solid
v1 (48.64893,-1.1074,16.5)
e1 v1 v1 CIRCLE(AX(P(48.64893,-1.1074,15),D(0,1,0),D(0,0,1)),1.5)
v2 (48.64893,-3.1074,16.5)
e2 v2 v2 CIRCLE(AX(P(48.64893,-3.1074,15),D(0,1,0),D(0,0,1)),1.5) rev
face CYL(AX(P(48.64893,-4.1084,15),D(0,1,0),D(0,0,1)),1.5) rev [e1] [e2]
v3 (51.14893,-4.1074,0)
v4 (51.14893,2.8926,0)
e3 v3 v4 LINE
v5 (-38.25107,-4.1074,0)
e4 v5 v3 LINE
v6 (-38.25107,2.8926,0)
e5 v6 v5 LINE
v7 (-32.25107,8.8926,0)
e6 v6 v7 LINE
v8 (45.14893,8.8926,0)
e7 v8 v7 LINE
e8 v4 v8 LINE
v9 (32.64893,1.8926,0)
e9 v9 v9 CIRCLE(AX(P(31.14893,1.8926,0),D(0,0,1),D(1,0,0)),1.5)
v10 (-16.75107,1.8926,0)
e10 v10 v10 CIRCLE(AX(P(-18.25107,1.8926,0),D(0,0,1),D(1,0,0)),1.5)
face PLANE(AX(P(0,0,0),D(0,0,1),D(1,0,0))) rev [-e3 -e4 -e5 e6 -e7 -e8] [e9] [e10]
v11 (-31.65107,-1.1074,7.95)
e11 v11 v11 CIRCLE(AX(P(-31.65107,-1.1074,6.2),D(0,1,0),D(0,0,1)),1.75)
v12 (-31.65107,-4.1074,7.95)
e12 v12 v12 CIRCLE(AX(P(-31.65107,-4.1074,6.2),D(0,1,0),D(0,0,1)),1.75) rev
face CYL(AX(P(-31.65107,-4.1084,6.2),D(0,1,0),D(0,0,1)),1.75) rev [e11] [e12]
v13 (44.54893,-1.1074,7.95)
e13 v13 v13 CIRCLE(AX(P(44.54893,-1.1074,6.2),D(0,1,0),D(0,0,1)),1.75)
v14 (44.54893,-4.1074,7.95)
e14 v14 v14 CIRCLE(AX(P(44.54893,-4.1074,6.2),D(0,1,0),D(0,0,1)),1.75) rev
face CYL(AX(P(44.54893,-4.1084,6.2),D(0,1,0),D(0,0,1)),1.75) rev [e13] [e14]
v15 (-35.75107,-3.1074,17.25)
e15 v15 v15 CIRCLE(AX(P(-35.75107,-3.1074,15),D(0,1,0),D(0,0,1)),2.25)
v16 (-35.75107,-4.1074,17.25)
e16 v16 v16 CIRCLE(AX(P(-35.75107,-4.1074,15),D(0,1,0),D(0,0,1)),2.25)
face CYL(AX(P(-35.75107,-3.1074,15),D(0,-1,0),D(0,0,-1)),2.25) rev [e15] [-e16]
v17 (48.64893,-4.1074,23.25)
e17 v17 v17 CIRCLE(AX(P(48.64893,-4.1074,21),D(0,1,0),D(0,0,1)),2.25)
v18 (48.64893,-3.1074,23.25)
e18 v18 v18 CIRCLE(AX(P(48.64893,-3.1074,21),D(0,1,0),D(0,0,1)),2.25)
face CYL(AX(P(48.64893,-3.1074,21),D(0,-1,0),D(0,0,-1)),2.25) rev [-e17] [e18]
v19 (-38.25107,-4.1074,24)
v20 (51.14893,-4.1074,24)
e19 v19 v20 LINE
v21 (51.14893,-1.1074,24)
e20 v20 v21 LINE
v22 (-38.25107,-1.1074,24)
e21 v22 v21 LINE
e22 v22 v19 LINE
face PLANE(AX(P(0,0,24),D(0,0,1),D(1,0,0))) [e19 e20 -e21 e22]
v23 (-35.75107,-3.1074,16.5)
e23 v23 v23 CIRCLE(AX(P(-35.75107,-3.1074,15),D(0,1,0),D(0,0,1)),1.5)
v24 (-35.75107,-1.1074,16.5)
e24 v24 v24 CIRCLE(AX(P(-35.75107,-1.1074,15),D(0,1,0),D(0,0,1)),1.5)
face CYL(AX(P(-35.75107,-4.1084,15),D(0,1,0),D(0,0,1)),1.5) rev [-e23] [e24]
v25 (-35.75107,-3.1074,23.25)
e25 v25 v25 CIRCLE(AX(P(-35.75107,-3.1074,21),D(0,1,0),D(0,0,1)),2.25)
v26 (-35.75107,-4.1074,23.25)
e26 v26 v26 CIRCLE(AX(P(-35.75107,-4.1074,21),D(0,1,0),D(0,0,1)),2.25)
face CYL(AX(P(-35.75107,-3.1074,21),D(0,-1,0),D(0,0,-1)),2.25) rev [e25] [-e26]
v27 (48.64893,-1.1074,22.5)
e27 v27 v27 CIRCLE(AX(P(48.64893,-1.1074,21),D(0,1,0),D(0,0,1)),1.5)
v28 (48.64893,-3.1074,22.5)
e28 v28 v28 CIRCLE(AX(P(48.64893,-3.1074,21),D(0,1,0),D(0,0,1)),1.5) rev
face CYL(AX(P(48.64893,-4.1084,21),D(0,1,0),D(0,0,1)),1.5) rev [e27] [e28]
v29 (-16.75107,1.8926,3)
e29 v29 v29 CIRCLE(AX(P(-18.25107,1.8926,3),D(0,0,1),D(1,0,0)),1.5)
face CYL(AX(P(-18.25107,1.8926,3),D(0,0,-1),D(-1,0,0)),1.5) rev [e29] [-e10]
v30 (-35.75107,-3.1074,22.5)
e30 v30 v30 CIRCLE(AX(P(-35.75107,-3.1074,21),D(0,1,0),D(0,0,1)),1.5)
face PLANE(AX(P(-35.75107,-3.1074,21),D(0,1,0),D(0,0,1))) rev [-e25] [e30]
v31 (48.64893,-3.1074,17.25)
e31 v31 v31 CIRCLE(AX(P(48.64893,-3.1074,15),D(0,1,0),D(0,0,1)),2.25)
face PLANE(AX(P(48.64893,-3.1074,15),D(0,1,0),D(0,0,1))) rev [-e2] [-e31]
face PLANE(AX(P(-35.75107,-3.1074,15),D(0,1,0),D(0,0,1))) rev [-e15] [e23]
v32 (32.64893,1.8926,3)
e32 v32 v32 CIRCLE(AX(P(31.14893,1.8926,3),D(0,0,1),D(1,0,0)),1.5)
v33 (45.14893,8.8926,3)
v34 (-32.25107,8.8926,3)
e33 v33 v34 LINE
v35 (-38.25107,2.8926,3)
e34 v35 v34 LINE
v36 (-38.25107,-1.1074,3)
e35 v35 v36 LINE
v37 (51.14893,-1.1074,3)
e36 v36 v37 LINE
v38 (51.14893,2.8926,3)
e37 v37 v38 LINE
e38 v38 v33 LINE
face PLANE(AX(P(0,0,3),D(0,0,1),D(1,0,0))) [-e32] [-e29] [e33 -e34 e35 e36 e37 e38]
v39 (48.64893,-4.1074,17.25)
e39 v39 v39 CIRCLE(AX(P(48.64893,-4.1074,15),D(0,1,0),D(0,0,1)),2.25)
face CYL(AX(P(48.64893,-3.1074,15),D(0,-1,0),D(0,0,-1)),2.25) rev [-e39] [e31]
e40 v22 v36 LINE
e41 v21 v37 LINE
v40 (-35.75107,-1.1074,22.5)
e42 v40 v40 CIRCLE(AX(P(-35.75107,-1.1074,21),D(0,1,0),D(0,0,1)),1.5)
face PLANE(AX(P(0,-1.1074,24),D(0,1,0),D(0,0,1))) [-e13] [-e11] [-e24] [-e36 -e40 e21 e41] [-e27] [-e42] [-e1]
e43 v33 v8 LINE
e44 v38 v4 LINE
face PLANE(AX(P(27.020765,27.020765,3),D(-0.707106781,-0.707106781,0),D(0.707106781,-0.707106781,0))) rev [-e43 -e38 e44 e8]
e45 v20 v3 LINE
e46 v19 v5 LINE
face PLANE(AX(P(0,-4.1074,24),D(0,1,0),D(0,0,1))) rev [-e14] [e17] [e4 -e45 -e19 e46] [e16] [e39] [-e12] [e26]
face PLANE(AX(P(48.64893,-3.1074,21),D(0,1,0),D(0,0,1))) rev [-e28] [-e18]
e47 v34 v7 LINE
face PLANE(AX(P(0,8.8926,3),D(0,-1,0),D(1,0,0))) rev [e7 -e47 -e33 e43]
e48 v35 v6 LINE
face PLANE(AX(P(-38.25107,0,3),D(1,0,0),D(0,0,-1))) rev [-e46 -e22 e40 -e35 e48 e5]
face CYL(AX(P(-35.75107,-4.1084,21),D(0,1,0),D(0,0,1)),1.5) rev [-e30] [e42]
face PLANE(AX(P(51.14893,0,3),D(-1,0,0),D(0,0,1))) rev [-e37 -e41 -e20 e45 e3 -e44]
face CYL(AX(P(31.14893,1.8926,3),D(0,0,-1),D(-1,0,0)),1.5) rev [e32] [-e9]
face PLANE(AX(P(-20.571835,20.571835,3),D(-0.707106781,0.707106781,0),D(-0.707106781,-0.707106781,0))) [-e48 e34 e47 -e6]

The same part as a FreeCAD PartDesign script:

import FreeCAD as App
import Part
import Sketcher
from FreeCAD import Vector
Q = App.Units.Quantity


def add_polygon(sketch, points):
    """Adds a closed chain of lines whose ends are joined by coincident constraints."""
    first, n = sketch.GeometryCount, len(points)
    for a, b in zip(points, points[1:] + points[:1]):
        sketch.addGeometry(Part.LineSegment(App.Vector(*a, 0), App.Vector(*b, 0)), False)
    for i in range(n):
        sketch.addConstraint(Sketcher.Constraint("Coincident", first + i, 2, first + (i + 1) % n, 1))

doc = App.newDocument("Part")
body = doc.addObject("PartDesign::Body", "Body")

# Sketch on XY plane
sketch1 = body.newObject("Sketcher::SketchObject", "Sketch")
sketch1.AttachmentSupport = (doc.getObject("XY_Plane"), [""])
sketch1.MapMode = "FlatFace"
add_polygon(sketch1, [(-32.3, 8.9), (-38.3, 2.9), (-38.3, -1.1), (51.1, -1.1), (51.1, 2.9), (45.1, 8.9)])  # lines 0-5
sketch1.addGeometry(Part.Circle(Vector(-18.3, 1.9, 0), Vector(0, 0, 1), 1.5), False)  # 6
sketch1.addGeometry(Part.Circle(Vector(31.1, 1.9, 0), Vector(0, 0, 1), 1.5), False)  # 7
sketch1.addConstraint([
    Sketcher.Constraint("Vertical", 1),
    Sketcher.Constraint("Horizontal", 2),
    Sketcher.Constraint("Vertical", 3),
    Sketcher.Constraint("Horizontal", 5),
    Sketcher.Constraint("Equal", 6, 7),
    Sketcher.Constraint("Perpendicular", 0, 4),
    Sketcher.Constraint("Horizontal", 6, 3, 7, 3),
    Sketcher.Constraint("Horizontal", 0, 2, 3, 2),
    Sketcher.Constraint("Equal", 0, 4),
    Sketcher.Constraint("Diameter", 6, Q("3 mm")),
    Sketcher.Constraint("DistanceY", 1, 2, 1, 1, Q("4 mm")),
    Sketcher.Constraint("DistanceX", 2, 1, 2, 2, Q("89.4 mm")),
    Sketcher.Constraint("DistanceX", 5, 2, 5, 1, Q("77.4 mm")),
    Sketcher.Constraint("DistanceX", 0, 2, 6, 3, Q("20 mm")),
    Sketcher.Constraint("DistanceY", 6, 3, 0, 2, Q("1 mm")),
    Sketcher.Constraint("DistanceX", 7, 3, 2, 2, Q("20 mm")),
    Sketcher.Constraint("DistanceY", -1, 1, 6, 3, Q("1.8926 mm")),
    Sketcher.Constraint("DistanceX", 6, 3, -1, 1, Q("18.25107 mm")),
])
pad1 = body.newObject("PartDesign::Pad", "Pad")
pad1.Profile = sketch1
pad1.Length = 3

# Sketch on XY plane
sketch2 = body.newObject("Sketcher::SketchObject", "Sketch001")
sketch2.AttachmentSupport = (doc.getObject("XY_Plane"), [""])
sketch2.MapMode = "FlatFace"
add_polygon(sketch2, [(-38.3, -1.1), (-38.3, -4.1), (51.1, -4.1), (51.1, -1.1)])  # lines 0-3
sketch2.addConstraint([
    Sketcher.Constraint("Vertical", 0),
    Sketcher.Constraint("Horizontal", 1),
    Sketcher.Constraint("Vertical", 2),
    Sketcher.Constraint("Horizontal", 3),
    Sketcher.Constraint("DistanceY", 0, 2, 0, 1, Q("3 mm")),
    Sketcher.Constraint("DistanceX", 1, 1, 1, 2, Q("89.4 mm")),
    Sketcher.Constraint("DistanceY", 0, 2, -1, 1, Q("4.1074 mm")),
    Sketcher.Constraint("DistanceX", 0, 2, -1, 1, Q("38.25107 mm")),
])
pad2 = body.newObject("PartDesign::Pad", "Pad001")
pad2.Profile = sketch2
pad2.Length = 24

# Sketch on XZ plane
sketch3 = body.newObject("Sketcher::SketchObject", "Sketch002")
sketch3.AttachmentSupport = (doc.getObject("XZ_Plane"), [""])
sketch3.MapMode = "FlatFace"
sketch3.AttachmentOffset = App.Placement(Vector(0, 0, 1.1074), App.Rotation())
sketch3.addGeometry(Part.Circle(Vector(48.6, 15, 0), Vector(0, 0, 1), 1.5), False)
sketch3.addConstraint([
    Sketcher.Constraint("Diameter", 0, Q("3 mm")),
    Sketcher.Constraint("DistanceY", -1, 1, 0, 3, Q("15 mm")),
    Sketcher.Constraint("DistanceX", -1, 1, 0, 3, Q("48.64893 mm")),
])
pocket1 = body.newObject("PartDesign::Pocket", "Pocket")
pocket1.Profile = sketch3
pocket1.Type = "UpToFirst"
pocket1.Reversed = True

# Sketch on XZ plane
sketch4 = body.newObject("Sketcher::SketchObject", "Sketch003")
sketch4.AttachmentSupport = (doc.getObject("XZ_Plane"), [""])
sketch4.MapMode = "FlatFace"
sketch4.AttachmentOffset = App.Placement(Vector(0, 0, 1.1074), App.Rotation())
sketch4.addGeometry(Part.Circle(Vector(48.6, 21, 0), Vector(0, 0, 1), 1.5), False)
sketch4.addConstraint([
    Sketcher.Constraint("Diameter", 0, Q("3 mm")),
    Sketcher.Constraint("DistanceY", -1, 1, 0, 3, Q("21 mm")),
    Sketcher.Constraint("DistanceX", -1, 1, 0, 3, Q("48.64893 mm")),
])
pocket2 = body.newObject("PartDesign::Pocket", "Pocket001")
pocket2.Profile = sketch4
pocket2.Type = "UpToFirst"
pocket2.Reversed = True

# Sketch on XZ plane
sketch5 = body.newObject("Sketcher::SketchObject", "Sketch004")
sketch5.AttachmentSupport = (doc.getObject("XZ_Plane"), [""])
sketch5.MapMode = "FlatFace"
sketch5.AttachmentOffset = App.Placement(Vector(0, 0, 1.1074), App.Rotation())
sketch5.addGeometry(Part.Circle(Vector(-35.8, 15, 0), Vector(0, 0, 1), 1.5), False)
sketch5.addConstraint([
    Sketcher.Constraint("Diameter", 0, Q("3 mm")),
    Sketcher.Constraint("DistanceY", -1, 1, 0, 3, Q("15 mm")),
    Sketcher.Constraint("DistanceX", 0, 3, -1, 1, Q("35.75107 mm")),
])
pocket3 = body.newObject("PartDesign::Pocket", "Pocket002")
pocket3.Profile = sketch5
pocket3.Type = "UpToFirst"
pocket3.Reversed = True

# Sketch on XZ plane
sketch6 = body.newObject("Sketcher::SketchObject", "Sketch005")
sketch6.AttachmentSupport = (doc.getObject("XZ_Plane"), [""])
sketch6.MapMode = "FlatFace"
sketch6.AttachmentOffset = App.Placement(Vector(0, 0, 1.1074), App.Rotation())
sketch6.addGeometry(Part.Circle(Vector(-35.8, 21, 0), Vector(0, 0, 1), 1.5), False)
sketch6.addConstraint([
    Sketcher.Constraint("Diameter", 0, Q("3 mm")),
    Sketcher.Constraint("DistanceY", -1, 1, 0, 3, Q("21 mm")),
    Sketcher.Constraint("DistanceX", 0, 3, -1, 1, Q("35.75107 mm")),
])
pocket4 = body.newObject("PartDesign::Pocket", "Pocket003")
pocket4.Profile = sketch6
pocket4.Type = "UpToFirst"
pocket4.Reversed = True

# Sketch on XZ plane
sketch7 = body.newObject("Sketcher::SketchObject", "Sketch006")
sketch7.AttachmentSupport = (doc.getObject("XZ_Plane"), [""])
sketch7.MapMode = "FlatFace"
sketch7.AttachmentOffset = App.Placement(Vector(0, 0, 1.1074), App.Rotation())
sketch7.addGeometry(Part.Circle(Vector(44.5, 6.2, 0), Vector(0, 0, 1), 1.8), False)
sketch7.addConstraint([
    Sketcher.Constraint("Diameter", 0, Q("3.5 mm")),
    Sketcher.Constraint("DistanceY", -1, 1, 0, 3, Q("6.2 mm")),
    Sketcher.Constraint("DistanceX", -1, 1, 0, 3, Q("44.54893 mm")),
])
pocket5 = body.newObject("PartDesign::Pocket", "Pocket004")
pocket5.Profile = sketch7
pocket5.Type = "UpToFirst"
pocket5.Reversed = True

# Sketch on XZ plane
sketch8 = body.newObject("Sketcher::SketchObject", "Sketch007")
sketch8.AttachmentSupport = (doc.getObject("XZ_Plane"), [""])
sketch8.MapMode = "FlatFace"
sketch8.AttachmentOffset = App.Placement(Vector(0, 0, 1.1074), App.Rotation())
sketch8.addGeometry(Part.Circle(Vector(-31.7, 6.2, 0), Vector(0, 0, 1), 1.8), False)
sketch8.addConstraint([
    Sketcher.Constraint("Diameter", 0, Q("3.5 mm")),
    Sketcher.Constraint("DistanceY", -1, 1, 0, 3, Q("6.2 mm")),
    Sketcher.Constraint("DistanceX", 0, 3, -1, 1, Q("31.65107 mm")),
])
pocket6 = body.newObject("PartDesign::Pocket", "Pocket005")
pocket6.Profile = sketch8
pocket6.Type = "UpToFirst"
pocket6.Reversed = True

# Sketch on XZ plane
sketch9 = body.newObject("Sketcher::SketchObject", "Sketch008")
sketch9.AttachmentSupport = (doc.getObject("XZ_Plane"), [""])
sketch9.MapMode = "FlatFace"
sketch9.AttachmentOffset = App.Placement(Vector(0, 0, 4.1074), App.Rotation())
sketch9.addGeometry([
    Part.Circle(Vector(-35.8, 15, 0), Vector(0, 0, 1), 2.2),  # 0
    Part.Circle(Vector(-35.8, 15, 0), Vector(0, 0, 1), 1.5),  # 1
    Part.Circle(Vector(-35.8, 21, 0), Vector(0, 0, 1), 2.2),  # 2
    Part.Circle(Vector(-35.8, 21, 0), Vector(0, 0, 1), 1.5),  # 3
    Part.Circle(Vector(48.6, 15, 0), Vector(0, 0, 1), 2.2),  # 4
    Part.Circle(Vector(48.6, 21, 0), Vector(0, 0, 1), 2.2),  # 5
], False)
sketch9.addConstraint([
    Sketcher.Constraint("Coincident", 1, 3, 0, 3),
    Sketcher.Constraint("Coincident", 3, 3, 2, 3),
    Sketcher.Constraint("Equal", 0, 2),
    Sketcher.Constraint("Equal", 1, 3),
    Sketcher.Constraint("Equal", 2, 4),
    Sketcher.Constraint("Equal", 4, 5),
    Sketcher.Constraint("Horizontal", 1, 3, 4, 3),
    Sketcher.Constraint("Horizontal", 3, 3, 5, 3),
    Sketcher.Constraint("Vertical", 1, 3, 2, 3),
    Sketcher.Constraint("Vertical", 4, 3, 5, 3),
    Sketcher.Constraint("Diameter", 1, Q("3 mm")),
    Sketcher.Constraint("Diameter", 0, Q("4.5 mm")),
    Sketcher.Constraint("DistanceY", -1, 1, 0, 3, Q("15 mm")),
    Sketcher.Constraint("DistanceY", -1, 1, 2, 3, Q("21 mm")),
    Sketcher.Constraint("DistanceX", 0, 3, 4, 3, Q("84.4 mm")),
    Sketcher.Constraint("DistanceX", 0, 3, -1, 1, Q("35.75107 mm")),
])
pocket7 = body.newObject("PartDesign::Pocket", "Pocket006")
pocket7.Profile = sketch9
pocket7.Length = 1

doc.recompute()
